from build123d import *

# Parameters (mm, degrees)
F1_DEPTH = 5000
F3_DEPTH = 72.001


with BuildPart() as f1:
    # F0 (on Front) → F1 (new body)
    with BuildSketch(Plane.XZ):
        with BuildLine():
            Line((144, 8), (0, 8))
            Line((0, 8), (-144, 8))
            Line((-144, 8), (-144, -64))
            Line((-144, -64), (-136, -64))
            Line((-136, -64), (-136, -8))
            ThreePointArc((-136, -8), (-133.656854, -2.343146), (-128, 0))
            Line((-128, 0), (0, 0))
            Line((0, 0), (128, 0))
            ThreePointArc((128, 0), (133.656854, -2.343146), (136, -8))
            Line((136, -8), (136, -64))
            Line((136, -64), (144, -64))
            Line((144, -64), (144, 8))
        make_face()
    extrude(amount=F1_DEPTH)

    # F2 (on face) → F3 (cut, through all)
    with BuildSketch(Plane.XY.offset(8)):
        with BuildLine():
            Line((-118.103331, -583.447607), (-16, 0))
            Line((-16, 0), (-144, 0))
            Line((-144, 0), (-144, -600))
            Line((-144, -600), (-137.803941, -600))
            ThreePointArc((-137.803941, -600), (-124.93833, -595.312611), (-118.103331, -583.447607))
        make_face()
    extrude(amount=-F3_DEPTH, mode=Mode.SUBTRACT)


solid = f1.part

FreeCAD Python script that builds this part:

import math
import FreeCAD as App
import Part
import Sketcher
Q = App.Units.Quantity

doc = App.newDocument("Part")
body = doc.addObject("PartDesign::Body", "Body")

sketch1 = body.newObject("Sketcher::SketchObject", "Sketch")
sketch1.AttachmentSupport = (doc.getObject("XZ_Plane"), [""])
sketch1.MapMode = "FlatFace"
sketch1.addGeometry([
    Part.LineSegment(App.Vector(144, 8, 0), App.Vector(-144, 8, 0)),
    Part.LineSegment(App.Vector(-144, 8, 0), App.Vector(-144, -64, 0)),
    Part.LineSegment(App.Vector(-144, -64, 0), App.Vector(-136, -64, 0)),
    Part.LineSegment(App.Vector(-136, -64, 0), App.Vector(-136, -8, 0)),
    Part.ArcOfCircle(Part.Circle(App.Vector(-127.999999, -8.000001, 0), App.Vector(0, 0, 1), 8.000001), math.radians(90.000006), math.radians(179.999994)),
    Part.LineSegment(App.Vector(-128, 0, 0), App.Vector(128, 0, 0)),
    Part.ArcOfCircle(Part.Circle(App.Vector(127.999999, -8.000001, 0), App.Vector(0, 0, 1), 8.000001), math.radians(0.000006), math.radians(89.999994)),
    Part.LineSegment(App.Vector(136, -8, 0), App.Vector(136, -64, 0)),
    Part.LineSegment(App.Vector(136, -64, 0), App.Vector(144, -64, 0)),
    Part.LineSegment(App.Vector(144, -64, 0), App.Vector(144, 8, 0)),
], False)
sketch1.addConstraint([
    Sketcher.Constraint("Coincident", 0, 2, 1, 1),
    Sketcher.Constraint("Coincident", 1, 2, 2, 1),
    Sketcher.Constraint("Coincident", 2, 2, 3, 1),
    Sketcher.Constraint("Tangent", 3, 2, 4, 2),
    Sketcher.Constraint("Tangent", 4, 1, 5, 1),
    Sketcher.Constraint("Tangent", 5, 2, 6, 2),
    Sketcher.Constraint("Tangent", 6, 1, 7, 1),
    Sketcher.Constraint("Coincident", 7, 2, 8, 1),
    Sketcher.Constraint("Coincident", 8, 2, 9, 1),
    Sketcher.Constraint("Coincident", 9, 2, 0, 1),
    Sketcher.Constraint("Horizontal", 0),
    Sketcher.Constraint("Vertical", 1),
    Sketcher.Constraint("Horizontal", 2),
    Sketcher.Constraint("Vertical", 3),
    Sketcher.Constraint("Horizontal", 5),
    Sketcher.Constraint("Vertical", 7),
    Sketcher.Constraint("Horizontal", 8),
    Sketcher.Constraint("Vertical", 9),
    Sketcher.Constraint("Equal", 4, 6),
    Sketcher.Constraint("Symmetric", 4, 1, 5, 2, -1, 1),
    Sketcher.Constraint("Symmetric", 1, 2, 8, 2, -2),
    Sketcher.Constraint("Radius", 4, Q("8.000001 mm")),
    Sketcher.Constraint("DistanceX", 0, 2, 0, 1, Q("288 mm")),
    Sketcher.Constraint("DistanceX", 2, 1, 2, 2, Q("8 mm")),
    Sketcher.Constraint("DistanceY", 1, 2, 1, 1, Q("72 mm")),
    Sketcher.Constraint("DistanceY", 3, 1, 3, 2, Q("56 mm")),
])
pad1 = body.newObject("PartDesign::Pad", "Pad")
pad1.Profile = sketch1
pad1.Length = 5000

sketch2 = body.newObject("Sketcher::SketchObject", "Sketch001")
sketch2.AttachmentSupport = (doc.getObject("XY_Plane"), [""])
sketch2.MapMode = "FlatFace"
sketch2.AttachmentOffset = App.Placement(App.Vector(0, 0, 8), App.Rotation())
sketch2.addGeometry([
    Part.LineSegment(App.Vector(-118.103331, -583.447607, 0), App.Vector(-16, 0, 0)),
    Part.LineSegment(App.Vector(-16, 0, 0), App.Vector(-144, 0, 0)),
    Part.LineSegment(App.Vector(-144, 0, 0), App.Vector(-144, -600, 0)),
    Part.LineSegment(App.Vector(-144, -600, 0), App.Vector(-137.803941, -600, 0)),
    Part.ArcOfCircle(Part.Circle(App.Vector(-137.803941, -579.999999, 0), App.Vector(0, 0, 1), 20.000001), math.radians(-89.999999), math.radians(-9.92625)),
], False)
sketch2.addConstraint([
    Sketcher.Constraint("Coincident", 0, 2, 1, 1),
    Sketcher.Constraint("Coincident", 1, 2, 2, 1),
    Sketcher.Constraint("Coincident", 2, 2, 3, 1),
    Sketcher.Constraint("Tangent", 3, 2, 4, 1),
    Sketcher.Constraint("Tangent", 4, 2, 0, 1),
    Sketcher.Constraint("Horizontal", 1),
    Sketcher.Constraint("Vertical", 2),
    Sketcher.Constraint("Horizontal", 3),
    Sketcher.Constraint("PointOnObject", 0, 2, -1),
    Sketcher.Constraint("Radius", 4, Q("20.000001 mm")),
    Sketcher.Constraint("DistanceX", 1, 2, 1, 1, Q("128 mm")),
    Sketcher.Constraint("DistanceY", 2, 2, 2, 1, Q("600 mm")),
    Sketcher.Constraint("DistanceX", 0, 2, -1, 1, Q("16 mm")),
    Sketcher.Constraint("DistanceX", 3, 1, 3, 2, Q("6.196059 mm")),
])
pocket1 = body.newObject("PartDesign::Pocket", "Pocket")
pocket1.Profile = sketch2
pocket1.Type = "ThroughAll"

doc.recompute()
